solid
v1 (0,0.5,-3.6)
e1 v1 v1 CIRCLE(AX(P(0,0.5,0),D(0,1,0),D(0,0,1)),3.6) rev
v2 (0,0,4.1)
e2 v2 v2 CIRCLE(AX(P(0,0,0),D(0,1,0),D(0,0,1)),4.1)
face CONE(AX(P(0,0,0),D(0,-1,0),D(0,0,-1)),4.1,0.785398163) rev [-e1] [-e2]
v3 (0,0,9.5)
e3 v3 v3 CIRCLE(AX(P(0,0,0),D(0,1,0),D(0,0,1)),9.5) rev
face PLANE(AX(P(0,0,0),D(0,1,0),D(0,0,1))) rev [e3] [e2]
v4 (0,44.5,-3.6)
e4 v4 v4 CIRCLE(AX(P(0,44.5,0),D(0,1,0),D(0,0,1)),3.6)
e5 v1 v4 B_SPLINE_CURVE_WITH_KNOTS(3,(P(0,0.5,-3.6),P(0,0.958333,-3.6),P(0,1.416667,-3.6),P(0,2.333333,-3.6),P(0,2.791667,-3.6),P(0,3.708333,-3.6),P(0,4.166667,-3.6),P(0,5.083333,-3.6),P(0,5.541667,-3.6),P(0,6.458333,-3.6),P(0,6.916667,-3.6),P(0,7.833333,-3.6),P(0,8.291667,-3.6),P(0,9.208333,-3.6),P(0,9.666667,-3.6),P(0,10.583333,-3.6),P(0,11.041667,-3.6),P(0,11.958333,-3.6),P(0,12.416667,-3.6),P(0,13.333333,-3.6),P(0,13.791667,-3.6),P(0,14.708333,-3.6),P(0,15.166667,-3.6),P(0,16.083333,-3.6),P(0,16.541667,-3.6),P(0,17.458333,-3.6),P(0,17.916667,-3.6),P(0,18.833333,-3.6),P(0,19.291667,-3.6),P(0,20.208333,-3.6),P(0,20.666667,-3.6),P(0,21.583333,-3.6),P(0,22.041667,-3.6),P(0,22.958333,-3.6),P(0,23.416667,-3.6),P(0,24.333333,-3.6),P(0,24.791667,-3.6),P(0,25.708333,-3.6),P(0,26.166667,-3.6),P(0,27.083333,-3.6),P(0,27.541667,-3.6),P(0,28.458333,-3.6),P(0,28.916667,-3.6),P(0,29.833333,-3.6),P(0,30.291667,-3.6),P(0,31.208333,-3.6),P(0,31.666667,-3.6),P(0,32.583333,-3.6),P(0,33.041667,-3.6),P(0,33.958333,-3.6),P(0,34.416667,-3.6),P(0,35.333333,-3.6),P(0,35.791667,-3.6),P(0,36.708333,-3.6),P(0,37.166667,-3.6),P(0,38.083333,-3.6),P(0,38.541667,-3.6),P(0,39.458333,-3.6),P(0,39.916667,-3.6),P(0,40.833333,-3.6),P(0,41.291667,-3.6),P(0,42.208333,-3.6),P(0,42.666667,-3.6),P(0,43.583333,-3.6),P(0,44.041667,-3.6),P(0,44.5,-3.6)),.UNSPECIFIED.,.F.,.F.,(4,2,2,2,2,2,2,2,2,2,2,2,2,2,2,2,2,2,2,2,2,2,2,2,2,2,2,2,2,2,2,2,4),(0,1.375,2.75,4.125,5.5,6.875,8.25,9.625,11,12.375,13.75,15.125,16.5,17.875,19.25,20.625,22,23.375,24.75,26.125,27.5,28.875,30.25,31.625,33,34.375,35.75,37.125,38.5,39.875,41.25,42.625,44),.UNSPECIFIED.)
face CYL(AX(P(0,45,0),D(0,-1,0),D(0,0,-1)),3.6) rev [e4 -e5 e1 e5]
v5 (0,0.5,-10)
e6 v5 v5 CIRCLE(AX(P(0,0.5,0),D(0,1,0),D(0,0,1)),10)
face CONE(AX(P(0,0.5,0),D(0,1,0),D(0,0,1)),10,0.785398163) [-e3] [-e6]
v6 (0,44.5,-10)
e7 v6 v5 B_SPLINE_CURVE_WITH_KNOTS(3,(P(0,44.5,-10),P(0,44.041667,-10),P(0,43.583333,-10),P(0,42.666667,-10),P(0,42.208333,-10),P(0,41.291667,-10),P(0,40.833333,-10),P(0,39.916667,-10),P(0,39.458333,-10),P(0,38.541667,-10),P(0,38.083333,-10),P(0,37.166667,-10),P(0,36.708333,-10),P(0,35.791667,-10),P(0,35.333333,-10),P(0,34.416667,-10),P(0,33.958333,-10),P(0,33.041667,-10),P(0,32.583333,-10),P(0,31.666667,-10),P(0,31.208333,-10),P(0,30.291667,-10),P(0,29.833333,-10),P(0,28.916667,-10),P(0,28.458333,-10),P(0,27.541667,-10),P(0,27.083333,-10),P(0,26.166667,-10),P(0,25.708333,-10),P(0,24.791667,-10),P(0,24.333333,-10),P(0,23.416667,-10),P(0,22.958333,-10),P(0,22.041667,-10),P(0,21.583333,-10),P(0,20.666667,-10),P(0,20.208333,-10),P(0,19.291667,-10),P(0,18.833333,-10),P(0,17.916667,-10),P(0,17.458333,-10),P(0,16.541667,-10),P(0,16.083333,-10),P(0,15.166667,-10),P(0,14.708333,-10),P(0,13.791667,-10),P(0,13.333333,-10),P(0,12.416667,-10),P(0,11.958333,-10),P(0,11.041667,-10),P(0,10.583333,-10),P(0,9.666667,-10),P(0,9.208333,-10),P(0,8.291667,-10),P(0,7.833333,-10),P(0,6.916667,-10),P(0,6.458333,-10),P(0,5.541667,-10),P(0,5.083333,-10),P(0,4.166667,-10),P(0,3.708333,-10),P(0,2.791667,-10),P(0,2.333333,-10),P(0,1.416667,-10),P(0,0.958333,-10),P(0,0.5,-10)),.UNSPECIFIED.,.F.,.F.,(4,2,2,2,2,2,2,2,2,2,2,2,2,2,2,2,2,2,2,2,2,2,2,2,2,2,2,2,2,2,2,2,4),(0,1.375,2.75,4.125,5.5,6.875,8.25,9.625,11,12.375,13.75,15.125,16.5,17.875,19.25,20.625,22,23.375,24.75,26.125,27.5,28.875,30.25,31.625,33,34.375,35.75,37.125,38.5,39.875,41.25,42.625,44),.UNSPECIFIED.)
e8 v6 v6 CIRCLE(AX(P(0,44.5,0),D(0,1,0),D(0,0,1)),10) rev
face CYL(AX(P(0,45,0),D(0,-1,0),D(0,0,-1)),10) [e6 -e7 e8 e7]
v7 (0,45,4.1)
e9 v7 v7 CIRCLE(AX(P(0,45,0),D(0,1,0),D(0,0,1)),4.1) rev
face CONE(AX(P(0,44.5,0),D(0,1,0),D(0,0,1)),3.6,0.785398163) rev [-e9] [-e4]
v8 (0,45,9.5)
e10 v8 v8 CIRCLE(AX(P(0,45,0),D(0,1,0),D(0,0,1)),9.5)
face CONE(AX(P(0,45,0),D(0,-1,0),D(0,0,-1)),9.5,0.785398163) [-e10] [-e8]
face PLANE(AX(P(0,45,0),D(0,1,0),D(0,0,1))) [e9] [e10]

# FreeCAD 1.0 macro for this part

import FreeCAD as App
import Part
import Sketcher
from FreeCAD import Vector


def edges_at(feature, points):
    """Names of the edges that pass closest to the given points."""
    edges = feature.Shape.Edges
    near = lambda p: min(range(len(edges)), key=lambda i: edges[i].distToShape(Part.Vertex(*p))[0])
    return sorted({f"Edge{near(p) + 1}" for p in points})

doc = App.newDocument("Part")
body = doc.addObject("PartDesign::Body", "Body")

# Sketch on XZ plane
sketch1 = doc.addObject("Sketcher::SketchObject", "Sketch")
body.addObject(sketch1)
sketch1.AttachmentSupport = (doc.XZ_Plane, [""])
sketch1.MapMode = "FlatFace"
sketch1.addGeometry([
    Part.Circle(Vector(0, 0, 0), Vector(0, 0, 1), 10),
    Part.Circle(Vector(0, 0, 0), Vector(0, 0, 1), 3.6),
], False)
sketch1.addConstraint([
    Sketcher.Constraint("Coincident", 0, 3, -1, 1),
    Sketcher.Constraint("Coincident", 1, 3, -1, 1),
    Sketcher.Constraint("Diameter", 0, 20.0),
    Sketcher.Constraint("Diameter", 1, 7.2),
])
pad1 = doc.addObject("PartDesign::Pad", "Pad")
body.addObject(pad1)
pad1.Profile = sketch1
pad1.Length = 45
pad1.Reversed = True
doc.recompute()

chamfer = doc.addObject("PartDesign::Chamfer", "Chamfer")
body.addObject(chamfer)
chamfer.Base = (pad1, edges_at(pad1, [
    (0, 0, 10),
    (0, 45, 10),
    (0, 0, 3.6),
    (0, 45, 3.6),
]))
chamfer.Size = 0.5

doc.recompute()
